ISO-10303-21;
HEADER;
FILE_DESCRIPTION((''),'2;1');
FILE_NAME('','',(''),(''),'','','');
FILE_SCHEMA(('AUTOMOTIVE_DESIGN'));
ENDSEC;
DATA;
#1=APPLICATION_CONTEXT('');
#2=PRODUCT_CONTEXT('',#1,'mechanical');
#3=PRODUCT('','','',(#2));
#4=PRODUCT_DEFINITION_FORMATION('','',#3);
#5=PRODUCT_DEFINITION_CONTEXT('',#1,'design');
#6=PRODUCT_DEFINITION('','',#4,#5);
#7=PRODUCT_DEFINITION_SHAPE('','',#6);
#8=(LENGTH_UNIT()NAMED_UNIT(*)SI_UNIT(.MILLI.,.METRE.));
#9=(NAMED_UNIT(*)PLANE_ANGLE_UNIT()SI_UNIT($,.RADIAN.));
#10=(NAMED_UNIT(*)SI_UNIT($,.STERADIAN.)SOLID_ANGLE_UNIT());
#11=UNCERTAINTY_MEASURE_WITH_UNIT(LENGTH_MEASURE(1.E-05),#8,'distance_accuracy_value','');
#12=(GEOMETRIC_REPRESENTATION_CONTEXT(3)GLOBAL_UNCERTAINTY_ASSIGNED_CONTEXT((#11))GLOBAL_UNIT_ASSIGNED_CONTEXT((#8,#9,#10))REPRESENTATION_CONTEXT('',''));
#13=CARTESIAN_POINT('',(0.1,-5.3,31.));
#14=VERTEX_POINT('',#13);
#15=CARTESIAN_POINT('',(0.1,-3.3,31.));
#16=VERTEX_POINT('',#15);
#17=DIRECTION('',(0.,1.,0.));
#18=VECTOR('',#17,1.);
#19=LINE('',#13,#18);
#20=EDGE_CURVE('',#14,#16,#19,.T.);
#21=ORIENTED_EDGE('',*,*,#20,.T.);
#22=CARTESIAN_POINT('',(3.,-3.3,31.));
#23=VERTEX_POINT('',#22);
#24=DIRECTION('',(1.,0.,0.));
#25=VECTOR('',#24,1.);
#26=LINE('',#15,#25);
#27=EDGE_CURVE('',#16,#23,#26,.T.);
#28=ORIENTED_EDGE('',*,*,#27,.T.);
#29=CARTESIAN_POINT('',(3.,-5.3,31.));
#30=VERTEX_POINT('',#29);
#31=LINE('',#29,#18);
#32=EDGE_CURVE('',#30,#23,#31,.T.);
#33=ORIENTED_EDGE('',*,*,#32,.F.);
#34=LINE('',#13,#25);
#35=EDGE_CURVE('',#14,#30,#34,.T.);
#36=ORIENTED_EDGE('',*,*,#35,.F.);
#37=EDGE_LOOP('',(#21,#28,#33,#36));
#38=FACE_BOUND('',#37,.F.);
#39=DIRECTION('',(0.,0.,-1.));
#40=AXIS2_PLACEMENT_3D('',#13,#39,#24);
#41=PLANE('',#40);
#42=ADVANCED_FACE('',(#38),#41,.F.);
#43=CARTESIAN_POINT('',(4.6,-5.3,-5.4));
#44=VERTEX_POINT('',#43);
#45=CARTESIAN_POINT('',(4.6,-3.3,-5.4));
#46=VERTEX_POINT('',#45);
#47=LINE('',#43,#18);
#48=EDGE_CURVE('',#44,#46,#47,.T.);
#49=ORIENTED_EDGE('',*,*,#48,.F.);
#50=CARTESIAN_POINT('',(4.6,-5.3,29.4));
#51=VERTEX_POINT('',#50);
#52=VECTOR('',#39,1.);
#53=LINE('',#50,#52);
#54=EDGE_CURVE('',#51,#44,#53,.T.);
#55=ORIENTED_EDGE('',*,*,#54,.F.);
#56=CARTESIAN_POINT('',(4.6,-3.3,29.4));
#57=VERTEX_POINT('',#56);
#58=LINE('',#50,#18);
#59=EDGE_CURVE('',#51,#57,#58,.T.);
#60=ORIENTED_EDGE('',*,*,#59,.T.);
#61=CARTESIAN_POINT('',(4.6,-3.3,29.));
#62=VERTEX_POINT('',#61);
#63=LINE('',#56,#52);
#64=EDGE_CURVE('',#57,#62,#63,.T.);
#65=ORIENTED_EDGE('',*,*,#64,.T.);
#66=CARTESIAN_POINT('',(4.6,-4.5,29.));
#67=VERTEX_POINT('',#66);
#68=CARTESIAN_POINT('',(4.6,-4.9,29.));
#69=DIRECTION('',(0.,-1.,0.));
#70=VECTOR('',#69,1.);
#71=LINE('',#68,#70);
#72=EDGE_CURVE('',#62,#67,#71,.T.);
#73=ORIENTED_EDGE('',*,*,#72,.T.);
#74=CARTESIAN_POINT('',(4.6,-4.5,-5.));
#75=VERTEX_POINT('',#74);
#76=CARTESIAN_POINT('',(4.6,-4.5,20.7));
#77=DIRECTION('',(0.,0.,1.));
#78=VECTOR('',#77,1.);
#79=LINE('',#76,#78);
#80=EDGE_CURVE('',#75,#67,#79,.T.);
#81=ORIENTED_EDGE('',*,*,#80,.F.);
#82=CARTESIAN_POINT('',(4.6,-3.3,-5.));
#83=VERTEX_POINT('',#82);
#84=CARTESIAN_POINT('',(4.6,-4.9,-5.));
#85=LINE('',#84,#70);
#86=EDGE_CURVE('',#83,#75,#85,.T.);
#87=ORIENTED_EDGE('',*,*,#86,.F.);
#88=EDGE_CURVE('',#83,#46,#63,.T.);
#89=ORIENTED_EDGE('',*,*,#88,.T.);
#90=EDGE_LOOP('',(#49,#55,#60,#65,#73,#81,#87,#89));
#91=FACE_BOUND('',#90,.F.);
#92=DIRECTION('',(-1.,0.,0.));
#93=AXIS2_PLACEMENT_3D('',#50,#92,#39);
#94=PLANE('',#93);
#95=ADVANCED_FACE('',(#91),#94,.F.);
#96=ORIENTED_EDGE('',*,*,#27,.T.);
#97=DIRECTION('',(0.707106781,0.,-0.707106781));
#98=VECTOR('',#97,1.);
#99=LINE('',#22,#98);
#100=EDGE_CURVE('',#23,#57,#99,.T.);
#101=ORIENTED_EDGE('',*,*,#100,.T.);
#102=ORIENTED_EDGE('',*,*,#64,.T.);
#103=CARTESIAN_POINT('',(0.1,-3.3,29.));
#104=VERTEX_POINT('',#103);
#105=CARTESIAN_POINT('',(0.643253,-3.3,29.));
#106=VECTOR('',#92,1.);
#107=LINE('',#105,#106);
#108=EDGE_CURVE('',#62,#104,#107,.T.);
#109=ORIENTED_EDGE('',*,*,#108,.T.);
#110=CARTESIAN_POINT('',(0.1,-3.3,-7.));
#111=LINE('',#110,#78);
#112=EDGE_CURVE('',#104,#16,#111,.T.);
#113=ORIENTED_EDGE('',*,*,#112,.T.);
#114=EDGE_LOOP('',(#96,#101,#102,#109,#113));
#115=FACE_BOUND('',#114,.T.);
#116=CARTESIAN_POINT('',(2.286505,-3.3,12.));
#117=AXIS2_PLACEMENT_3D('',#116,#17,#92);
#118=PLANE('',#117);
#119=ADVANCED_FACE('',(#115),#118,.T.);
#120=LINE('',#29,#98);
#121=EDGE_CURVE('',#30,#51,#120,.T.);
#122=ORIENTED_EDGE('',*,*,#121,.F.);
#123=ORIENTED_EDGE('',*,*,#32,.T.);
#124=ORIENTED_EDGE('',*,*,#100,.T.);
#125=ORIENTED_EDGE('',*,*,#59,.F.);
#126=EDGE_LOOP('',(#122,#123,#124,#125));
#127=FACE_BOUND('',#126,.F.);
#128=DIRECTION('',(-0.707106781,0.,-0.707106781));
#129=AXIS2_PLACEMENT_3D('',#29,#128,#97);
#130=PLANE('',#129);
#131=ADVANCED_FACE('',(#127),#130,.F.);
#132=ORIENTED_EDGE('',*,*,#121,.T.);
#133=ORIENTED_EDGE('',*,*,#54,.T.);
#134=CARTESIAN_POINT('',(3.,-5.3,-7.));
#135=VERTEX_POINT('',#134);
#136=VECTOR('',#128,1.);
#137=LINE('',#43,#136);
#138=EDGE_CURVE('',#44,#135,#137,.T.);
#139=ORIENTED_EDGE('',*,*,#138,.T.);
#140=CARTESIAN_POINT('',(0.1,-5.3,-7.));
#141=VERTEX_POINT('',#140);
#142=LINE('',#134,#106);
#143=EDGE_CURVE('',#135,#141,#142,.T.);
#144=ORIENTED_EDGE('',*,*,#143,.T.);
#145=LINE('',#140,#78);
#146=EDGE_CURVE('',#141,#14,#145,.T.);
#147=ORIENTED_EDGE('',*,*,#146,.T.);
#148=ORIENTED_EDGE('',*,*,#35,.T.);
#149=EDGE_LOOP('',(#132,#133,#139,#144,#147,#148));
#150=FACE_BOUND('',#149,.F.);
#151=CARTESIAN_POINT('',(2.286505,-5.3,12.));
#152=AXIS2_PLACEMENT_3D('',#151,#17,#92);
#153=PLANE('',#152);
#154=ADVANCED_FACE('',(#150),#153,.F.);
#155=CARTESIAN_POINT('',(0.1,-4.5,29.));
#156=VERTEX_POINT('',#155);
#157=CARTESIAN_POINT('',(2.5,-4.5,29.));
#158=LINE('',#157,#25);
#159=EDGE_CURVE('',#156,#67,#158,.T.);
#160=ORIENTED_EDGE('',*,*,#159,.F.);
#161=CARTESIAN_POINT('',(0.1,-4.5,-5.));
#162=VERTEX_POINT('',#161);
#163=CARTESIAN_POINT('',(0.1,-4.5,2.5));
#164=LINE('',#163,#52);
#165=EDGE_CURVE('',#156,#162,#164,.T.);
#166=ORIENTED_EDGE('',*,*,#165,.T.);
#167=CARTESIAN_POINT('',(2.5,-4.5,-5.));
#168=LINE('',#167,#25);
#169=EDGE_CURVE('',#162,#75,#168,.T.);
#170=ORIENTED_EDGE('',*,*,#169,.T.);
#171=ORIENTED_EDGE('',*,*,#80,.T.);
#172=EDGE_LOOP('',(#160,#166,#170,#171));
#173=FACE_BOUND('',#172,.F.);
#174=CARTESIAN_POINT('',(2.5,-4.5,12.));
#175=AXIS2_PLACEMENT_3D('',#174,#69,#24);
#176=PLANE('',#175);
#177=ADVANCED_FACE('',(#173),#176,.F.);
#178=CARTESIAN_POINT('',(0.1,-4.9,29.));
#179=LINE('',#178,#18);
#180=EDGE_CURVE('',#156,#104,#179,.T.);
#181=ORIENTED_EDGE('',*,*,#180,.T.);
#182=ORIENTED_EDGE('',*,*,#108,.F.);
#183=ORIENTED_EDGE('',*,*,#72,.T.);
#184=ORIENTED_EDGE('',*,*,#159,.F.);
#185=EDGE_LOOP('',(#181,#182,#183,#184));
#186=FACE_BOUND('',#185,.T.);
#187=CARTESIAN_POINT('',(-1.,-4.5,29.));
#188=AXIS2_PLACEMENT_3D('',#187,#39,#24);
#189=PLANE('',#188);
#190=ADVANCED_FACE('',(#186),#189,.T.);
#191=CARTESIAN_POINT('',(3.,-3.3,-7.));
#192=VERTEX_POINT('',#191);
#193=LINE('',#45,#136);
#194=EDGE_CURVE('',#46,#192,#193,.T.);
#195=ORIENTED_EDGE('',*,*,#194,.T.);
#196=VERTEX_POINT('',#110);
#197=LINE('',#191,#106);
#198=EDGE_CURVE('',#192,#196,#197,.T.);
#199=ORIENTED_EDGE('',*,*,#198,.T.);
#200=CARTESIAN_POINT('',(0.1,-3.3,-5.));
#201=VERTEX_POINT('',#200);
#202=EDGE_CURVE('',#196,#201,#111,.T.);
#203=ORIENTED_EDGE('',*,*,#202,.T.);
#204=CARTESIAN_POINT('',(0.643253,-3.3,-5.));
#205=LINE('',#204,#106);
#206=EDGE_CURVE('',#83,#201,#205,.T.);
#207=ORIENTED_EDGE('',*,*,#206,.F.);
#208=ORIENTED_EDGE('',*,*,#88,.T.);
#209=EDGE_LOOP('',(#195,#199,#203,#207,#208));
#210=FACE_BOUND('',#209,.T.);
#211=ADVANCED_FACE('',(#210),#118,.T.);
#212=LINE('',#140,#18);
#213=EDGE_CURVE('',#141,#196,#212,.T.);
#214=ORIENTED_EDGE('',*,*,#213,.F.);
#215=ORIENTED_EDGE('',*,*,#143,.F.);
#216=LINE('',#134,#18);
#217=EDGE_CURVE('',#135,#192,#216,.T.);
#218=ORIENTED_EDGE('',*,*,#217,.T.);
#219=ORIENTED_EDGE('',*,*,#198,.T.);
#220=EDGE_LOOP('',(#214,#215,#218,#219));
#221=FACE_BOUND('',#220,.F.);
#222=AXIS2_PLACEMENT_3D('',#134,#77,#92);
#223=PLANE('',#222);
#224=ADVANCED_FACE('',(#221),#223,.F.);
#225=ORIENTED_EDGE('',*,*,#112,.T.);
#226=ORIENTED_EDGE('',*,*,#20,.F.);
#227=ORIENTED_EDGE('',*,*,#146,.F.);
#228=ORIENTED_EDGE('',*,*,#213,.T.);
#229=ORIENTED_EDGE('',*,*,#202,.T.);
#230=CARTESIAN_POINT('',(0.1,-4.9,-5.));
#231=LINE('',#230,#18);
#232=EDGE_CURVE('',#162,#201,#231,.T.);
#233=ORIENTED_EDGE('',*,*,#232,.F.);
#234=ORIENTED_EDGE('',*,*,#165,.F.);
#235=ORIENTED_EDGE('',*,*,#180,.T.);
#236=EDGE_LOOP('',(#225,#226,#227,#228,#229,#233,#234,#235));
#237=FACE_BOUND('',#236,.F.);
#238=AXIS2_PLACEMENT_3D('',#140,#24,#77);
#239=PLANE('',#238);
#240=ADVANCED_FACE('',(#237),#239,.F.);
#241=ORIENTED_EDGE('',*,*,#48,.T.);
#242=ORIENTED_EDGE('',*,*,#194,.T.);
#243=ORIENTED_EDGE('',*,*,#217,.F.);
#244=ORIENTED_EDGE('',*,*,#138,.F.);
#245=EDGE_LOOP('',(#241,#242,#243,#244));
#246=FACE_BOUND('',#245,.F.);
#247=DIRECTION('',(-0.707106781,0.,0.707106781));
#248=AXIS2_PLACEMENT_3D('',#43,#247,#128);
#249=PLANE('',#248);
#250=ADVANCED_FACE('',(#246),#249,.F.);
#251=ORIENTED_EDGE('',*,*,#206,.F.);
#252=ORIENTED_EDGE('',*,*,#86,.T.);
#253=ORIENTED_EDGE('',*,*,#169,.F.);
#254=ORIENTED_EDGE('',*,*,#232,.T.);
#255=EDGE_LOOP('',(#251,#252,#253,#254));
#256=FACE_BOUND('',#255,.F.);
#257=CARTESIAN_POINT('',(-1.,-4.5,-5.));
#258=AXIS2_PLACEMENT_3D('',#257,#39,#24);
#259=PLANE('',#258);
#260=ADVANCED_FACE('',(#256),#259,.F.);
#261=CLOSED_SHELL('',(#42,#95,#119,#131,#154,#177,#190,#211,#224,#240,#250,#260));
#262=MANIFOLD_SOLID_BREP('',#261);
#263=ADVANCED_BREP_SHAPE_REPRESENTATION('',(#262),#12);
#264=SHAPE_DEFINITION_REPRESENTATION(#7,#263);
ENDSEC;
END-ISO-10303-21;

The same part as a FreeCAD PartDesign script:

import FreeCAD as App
import Part
import Sketcher
from FreeCAD import Vector
Q = App.Units.Quantity


def add_polygon(sketch, points):
    """Adds a closed chain of lines whose ends are joined by coincident constraints."""
    first, n = sketch.GeometryCount, len(points)
    for a, b in zip(points, points[1:] + points[:1]):
        sketch.addGeometry(Part.LineSegment(App.Vector(*a, 0), App.Vector(*b, 0)), False)
    for i in range(n):
        sketch.addConstraint(Sketcher.Constraint("Coincident", first + i, 2, first + (i + 1) % n, 1))

doc = App.newDocument("Part")
body = doc.addObject("PartDesign::Body", "Body")

# Sketch on XZ plane
sketch1 = body.newObject("Sketcher::SketchObject", "Sketch")
sketch1.AttachmentSupport = (doc.getObject("XZ_Plane"), [""])
sketch1.MapMode = "FlatFace"
sketch1.AttachmentOffset = App.Placement(Vector(0, 0, 4.5), App.Rotation())
add_polygon(sketch1, [(-41, 29), (-41, -5), (-34, -5), (-34, 29)])  # lines 0-3
sketch1.addConstraint(Sketcher.Constraint("Vertical", 0))
sketch1.addConstraint(Sketcher.Constraint("Horizontal", 1))
sketch1.addConstraint(Sketcher.Constraint("Vertical", 2))
sketch1.addConstraint(Sketcher.Constraint("Horizontal", 3))
sketch1.addConstraint(Sketcher.Constraint("DistanceX", 1, 1, 1, 2, Q("7 mm")))
sketch1.addConstraint(Sketcher.Constraint("DistanceY", 0, 2, 0, 1, Q("34 mm")))
sketch1.addConstraint(Sketcher.Constraint("DistanceX", 0, 2, -1, 1, Q("41 mm")))
sketch1.addConstraint(Sketcher.Constraint("DistanceY", 0, 2, -1, 1, Q("5 mm")))
pad1 = body.newObject("PartDesign::Pad", "Pad")
pad1.Profile = sketch1
pad1.Length = 2
pad1.Reversed = True
body2 = doc.addObject("PartDesign::Body", "Body001")

# Sketch on XZ plane
sketch2 = body2.newObject("Sketcher::SketchObject", "Sketch001")
sketch2.AttachmentSupport = (doc.getObject("XZ_Plane001"), [""])
sketch2.MapMode = "FlatFace"
sketch2.AttachmentOffset = App.Placement(Vector(0, 0, 5.3), App.Rotation())
add_polygon(sketch2, [(-35.4, 29.4), (-37, 31), (-39.9, 31), (-39.9, -7), (-37, -7), (-35.4, -5.4)])  # lines 0-5
sketch2.addConstraint(Sketcher.Constraint("Horizontal", 1))
sketch2.addConstraint(Sketcher.Constraint("Vertical", 2))
sketch2.addConstraint(Sketcher.Constraint("Horizontal", 3))
sketch2.addConstraint(Sketcher.Constraint("Vertical", 5))
sketch2.addConstraint(Sketcher.Constraint("Perpendicular", 0, 4))
sketch2.addConstraint(Sketcher.Constraint("Vertical", 0, 2, 3, 2))
sketch2.addConstraint(Sketcher.Constraint("Equal", 0, 4))
sketch2.addConstraint(Sketcher.Constraint("DistanceY", 2, 2, 2, 1, Q("38 mm")))
sketch2.addConstraint(Sketcher.Constraint("DistanceX", 1, 2, 1, 1, Q("2.9 mm")))
sketch2.addConstraint(Sketcher.Constraint("DistanceY", 5, 1, 5, 2, Q("34.8 mm")))
sketch2.addConstraint(Sketcher.Constraint("DistanceX", 0, 2, -1, 1, Q("37 mm")))
sketch2.addConstraint(Sketcher.Constraint("DistanceY", -1, 1, 0, 2, Q("31 mm")))
pad2 = body2.newObject("PartDesign::Pad", "Pad001")
pad2.Profile = sketch2
pad2.Length = 2
pad2.Reversed = True
doc.recompute()

boolean = body2.newObject("PartDesign::Boolean", "Boolean")
boolean.Type = "Cut"
boolean.addObjects([body])
body3 = doc.addObject("PartDesign::Body", "Body002")
doc.recompute()

body2.Placement = App.Placement(Vector(40, 0, 0), App.Rotation(Vector(0, 0, 1), 0))
boolean2 = body3.newObject("PartDesign::Boolean", "Boolean001")
boolean2.Type = "Fuse"
boolean2.addObjects([body2])

doc.recompute()
